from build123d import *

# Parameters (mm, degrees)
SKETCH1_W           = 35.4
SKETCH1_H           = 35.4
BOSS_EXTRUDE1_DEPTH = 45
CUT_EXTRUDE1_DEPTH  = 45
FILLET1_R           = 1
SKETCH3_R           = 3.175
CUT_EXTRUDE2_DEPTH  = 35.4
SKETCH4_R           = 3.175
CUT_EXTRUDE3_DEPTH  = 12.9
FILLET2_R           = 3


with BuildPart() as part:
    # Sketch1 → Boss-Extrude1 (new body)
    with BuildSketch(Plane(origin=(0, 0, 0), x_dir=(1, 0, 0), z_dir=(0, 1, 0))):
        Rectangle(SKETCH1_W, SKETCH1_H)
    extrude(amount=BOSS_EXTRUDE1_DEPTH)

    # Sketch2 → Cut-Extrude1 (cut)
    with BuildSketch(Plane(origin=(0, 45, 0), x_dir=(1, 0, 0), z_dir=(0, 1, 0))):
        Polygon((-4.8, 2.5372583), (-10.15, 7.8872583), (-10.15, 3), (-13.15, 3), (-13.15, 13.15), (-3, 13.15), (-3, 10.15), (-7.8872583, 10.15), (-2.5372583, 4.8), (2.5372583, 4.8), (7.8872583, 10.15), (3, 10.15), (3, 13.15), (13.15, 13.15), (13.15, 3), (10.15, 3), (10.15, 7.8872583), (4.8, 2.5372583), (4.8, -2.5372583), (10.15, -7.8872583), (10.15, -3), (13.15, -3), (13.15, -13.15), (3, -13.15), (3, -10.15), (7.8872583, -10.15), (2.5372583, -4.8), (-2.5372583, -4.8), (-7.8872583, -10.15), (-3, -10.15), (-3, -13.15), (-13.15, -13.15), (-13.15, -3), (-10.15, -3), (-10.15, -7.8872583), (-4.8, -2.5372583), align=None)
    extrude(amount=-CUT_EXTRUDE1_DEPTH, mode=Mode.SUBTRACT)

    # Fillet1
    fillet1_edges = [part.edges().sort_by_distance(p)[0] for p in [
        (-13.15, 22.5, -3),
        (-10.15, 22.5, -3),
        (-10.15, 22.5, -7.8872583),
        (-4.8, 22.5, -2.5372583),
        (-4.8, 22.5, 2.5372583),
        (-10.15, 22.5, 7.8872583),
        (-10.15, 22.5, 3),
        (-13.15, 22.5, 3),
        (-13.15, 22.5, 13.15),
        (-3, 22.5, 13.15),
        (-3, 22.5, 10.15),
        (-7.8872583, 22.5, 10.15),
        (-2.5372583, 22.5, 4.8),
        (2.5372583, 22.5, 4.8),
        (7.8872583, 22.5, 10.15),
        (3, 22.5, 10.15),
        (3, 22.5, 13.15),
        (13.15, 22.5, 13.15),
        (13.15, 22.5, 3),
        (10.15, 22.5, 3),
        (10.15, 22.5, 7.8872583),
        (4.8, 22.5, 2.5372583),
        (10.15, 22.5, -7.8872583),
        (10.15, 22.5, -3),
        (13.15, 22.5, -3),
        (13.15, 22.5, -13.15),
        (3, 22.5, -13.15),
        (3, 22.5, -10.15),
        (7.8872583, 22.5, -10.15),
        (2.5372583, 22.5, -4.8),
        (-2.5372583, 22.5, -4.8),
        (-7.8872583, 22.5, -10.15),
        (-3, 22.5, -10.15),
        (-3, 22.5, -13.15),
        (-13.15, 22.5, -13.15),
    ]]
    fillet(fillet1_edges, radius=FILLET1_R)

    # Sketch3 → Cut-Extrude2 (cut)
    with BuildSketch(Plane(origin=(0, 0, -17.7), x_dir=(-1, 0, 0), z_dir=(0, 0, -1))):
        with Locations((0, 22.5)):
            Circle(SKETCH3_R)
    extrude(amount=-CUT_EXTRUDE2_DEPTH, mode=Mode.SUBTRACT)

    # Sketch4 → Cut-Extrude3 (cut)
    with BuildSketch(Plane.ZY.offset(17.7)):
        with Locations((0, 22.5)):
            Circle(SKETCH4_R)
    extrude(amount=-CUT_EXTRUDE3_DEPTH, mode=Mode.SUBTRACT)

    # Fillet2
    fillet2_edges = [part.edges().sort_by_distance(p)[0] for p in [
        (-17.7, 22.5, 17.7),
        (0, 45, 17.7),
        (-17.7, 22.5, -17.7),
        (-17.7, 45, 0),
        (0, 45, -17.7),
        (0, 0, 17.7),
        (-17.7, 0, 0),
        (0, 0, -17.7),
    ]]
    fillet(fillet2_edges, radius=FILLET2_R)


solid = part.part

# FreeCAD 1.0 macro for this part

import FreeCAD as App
import Part
import Sketcher
from FreeCAD import Vector
Q = App.Units.Quantity


def edges_at(feature, points):
    """Names of the edges that pass closest to the given points."""
    edges = feature.Shape.Edges
    near = lambda p: min(range(len(edges)), key=lambda i: edges[i].distToShape(Part.Vertex(*p))[0])
    return sorted({f"Edge{near(p) + 1}" for p in points})

doc = App.newDocument("Part")
body = doc.addObject("PartDesign::Body", "Body")

sketch1 = body.newObject("Sketcher::SketchObject", "Sketch")
sketch1.AttachmentSupport = (doc.getObject("XZ_Plane"), [""])
sketch1.MapMode = "FlatFace"
sketch1.addGeometry([
    Part.LineSegment(Vector(-18, -18, 0), Vector(-18, 18, 0)),
    Part.LineSegment(Vector(-18, 18, 0), Vector(18, 18, 0)),
    Part.LineSegment(Vector(18, 18, 0), Vector(18, -18, 0)),
    Part.LineSegment(Vector(18, -18, 0), Vector(-18, -18, 0)),
], False)
sketch1.addConstraint([
    Sketcher.Constraint("Coincident", 0, 2, 1, 1),
    Sketcher.Constraint("Coincident", 1, 2, 2, 1),
    Sketcher.Constraint("Coincident", 2, 2, 3, 1),
    Sketcher.Constraint("Coincident", 3, 2, 0, 1),
    Sketcher.Constraint("Vertical", 0),
    Sketcher.Constraint("Horizontal", 1),
    Sketcher.Constraint("Vertical", 2),
    Sketcher.Constraint("Horizontal", 3),
    Sketcher.Constraint("Symmetric", 0, 2, 2, 2, -1, 1),
    Sketcher.Constraint("Equal", 3, 0),
    Sketcher.Constraint("DistanceX", 1, 1, 1, 2, Q("35.4 mm")),
])
pad1 = body.newObject("PartDesign::Pad", "Pad")
pad1.Profile = sketch1
pad1.Length = 45
pad1.Reversed = True

sketch2 = body.newObject("Sketcher::SketchObject", "Sketch001")
sketch2.AttachmentSupport = (doc.getObject("XZ_Plane"), [""])
sketch2.MapMode = "FlatFace"
sketch2.AttachmentOffset = App.Placement(Vector(0, 0, -45), App.Rotation())
sketch2.addGeometry([
    Part.LineSegment(Vector(-10.2, -7.9, 0), Vector(-4.8, -2.5, 0)),
    Part.LineSegment(Vector(-4.8, -2.5, 0), Vector(-4.8, 2.5, 0)),
    Part.LineSegment(Vector(-4.8, 2.5, 0), Vector(-10.2, 7.9, 0)),
    Part.LineSegment(Vector(-10.2, 7.9, 0), Vector(-10.2, 3, 0)),
    Part.LineSegment(Vector(-10.2, 3, 0), Vector(-13.2, 3, 0)),
    Part.LineSegment(Vector(-13.2, 3, 0), Vector(-13.2, 13.2, 0)),
    Part.LineSegment(Vector(-13.2, 13.2, 0), Vector(-3, 13.2, 0)),
    Part.LineSegment(Vector(-3, 13.2, 0), Vector(-3, 10.2, 0)),
    Part.LineSegment(Vector(-3, 10.2, 0), Vector(-7.9, 10.2, 0)),
    Part.LineSegment(Vector(-7.9, 10.2, 0), Vector(-2.5, 4.8, 0)),
    Part.LineSegment(Vector(-2.5, 4.8, 0), Vector(2.5, 4.8, 0)),
    Part.LineSegment(Vector(2.5, 4.8, 0), Vector(7.9, 10.2, 0)),
    Part.LineSegment(Vector(7.9, 10.2, 0), Vector(3, 10.2, 0)),
    Part.LineSegment(Vector(3, 10.2, 0), Vector(3, 13.2, 0)),
    Part.LineSegment(Vector(3, 13.2, 0), Vector(13.2, 13.2, 0)),
    Part.LineSegment(Vector(13.2, 13.2, 0), Vector(13.2, 3, 0)),
    Part.LineSegment(Vector(13.2, 3, 0), Vector(10.2, 3, 0)),
    Part.LineSegment(Vector(10.2, 3, 0), Vector(10.2, 7.9, 0)),
    Part.LineSegment(Vector(10.2, 7.9, 0), Vector(4.8, 2.5, 0)),
    Part.LineSegment(Vector(4.8, 2.5, 0), Vector(4.8, -2.5, 0)),
    Part.LineSegment(Vector(4.8, -2.5, 0), Vector(10.2, -7.9, 0)),
    Part.LineSegment(Vector(10.2, -7.9, 0), Vector(10.2, -3, 0)),
    Part.LineSegment(Vector(10.2, -3, 0), Vector(13.2, -3, 0)),
    Part.LineSegment(Vector(13.2, -3, 0), Vector(13.2, -13.2, 0)),
    Part.LineSegment(Vector(13.2, -13.2, 0), Vector(3, -13.2, 0)),
    Part.LineSegment(Vector(3, -13.2, 0), Vector(3, -10.2, 0)),
    Part.LineSegment(Vector(3, -10.2, 0), Vector(7.9, -10.2, 0)),
    Part.LineSegment(Vector(7.9, -10.2, 0), Vector(2.5, -4.8, 0)),
    Part.LineSegment(Vector(2.5, -4.8, 0), Vector(-2.5, -4.8, 0)),
    Part.LineSegment(Vector(-2.5, -4.8, 0), Vector(-7.9, -10.2, 0)),
    Part.LineSegment(Vector(-7.9, -10.2, 0), Vector(-3, -10.2, 0)),
    Part.LineSegment(Vector(-3, -10.2, 0), Vector(-3, -13.2, 0)),
    Part.LineSegment(Vector(-3, -13.2, 0), Vector(-13.2, -13.2, 0)),
    Part.LineSegment(Vector(-13.2, -13.2, 0), Vector(-13.2, -3, 0)),
    Part.LineSegment(Vector(-13.2, -3, 0), Vector(-10.2, -3, 0)),
    Part.LineSegment(Vector(-10.2, -3, 0), Vector(-10.2, -7.9, 0)),
], False)
sketch2.addConstraint([
    Sketcher.Constraint("Coincident", 0, 2, 1, 1),
    Sketcher.Constraint("Coincident", 1, 2, 2, 1),
    Sketcher.Constraint("Coincident", 2, 2, 3, 1),
    Sketcher.Constraint("Coincident", 3, 2, 4, 1),
    Sketcher.Constraint("Coincident", 4, 2, 5, 1),
    Sketcher.Constraint("Coincident", 5, 2, 6, 1),
    Sketcher.Constraint("Coincident", 6, 2, 7, 1),
    Sketcher.Constraint("Coincident", 7, 2, 8, 1),
    Sketcher.Constraint("Coincident", 8, 2, 9, 1),
    Sketcher.Constraint("Coincident", 9, 2, 10, 1),
    Sketcher.Constraint("Coincident", 10, 2, 11, 1),
    Sketcher.Constraint("Coincident", 11, 2, 12, 1),
    Sketcher.Constraint("Coincident", 12, 2, 13, 1),
    Sketcher.Constraint("Coincident", 13, 2, 14, 1),
    Sketcher.Constraint("Coincident", 14, 2, 15, 1),
    Sketcher.Constraint("Coincident", 15, 2, 16, 1),
    Sketcher.Constraint("Coincident", 16, 2, 17, 1),
    Sketcher.Constraint("Coincident", 17, 2, 18, 1),
    Sketcher.Constraint("Coincident", 18, 2, 19, 1),
    Sketcher.Constraint("Coincident", 19, 2, 20, 1),
    Sketcher.Constraint("Coincident", 20, 2, 21, 1),
    Sketcher.Constraint("Coincident", 21, 2, 22, 1),
    Sketcher.Constraint("Coincident", 22, 2, 23, 1),
    Sketcher.Constraint("Coincident", 23, 2, 24, 1),
    Sketcher.Constraint("Coincident", 24, 2, 25, 1),
    Sketcher.Constraint("Coincident", 25, 2, 26, 1),
    Sketcher.Constraint("Coincident", 26, 2, 27, 1),
    Sketcher.Constraint("Coincident", 27, 2, 28, 1),
    Sketcher.Constraint("Coincident", 28, 2, 29, 1),
    Sketcher.Constraint("Coincident", 29, 2, 30, 1),
    Sketcher.Constraint("Coincident", 30, 2, 31, 1),
    Sketcher.Constraint("Coincident", 31, 2, 32, 1),
    Sketcher.Constraint("Coincident", 32, 2, 33, 1),
    Sketcher.Constraint("Coincident", 33, 2, 34, 1),
    Sketcher.Constraint("Coincident", 34, 2, 35, 1),
    Sketcher.Constraint("Coincident", 35, 2, 0, 1),
    Sketcher.Constraint("Vertical", 1),
    Sketcher.Constraint("Vertical", 3),
    Sketcher.Constraint("Horizontal", 4),
    Sketcher.Constraint("Vertical", 5),
    Sketcher.Constraint("Horizontal", 6),
    Sketcher.Constraint("Vertical", 7),
    Sketcher.Constraint("Horizontal", 8),
    Sketcher.Constraint("Horizontal", 10),
    Sketcher.Constraint("Horizontal", 12),
    Sketcher.Constraint("Vertical", 13),
    Sketcher.Constraint("Horizontal", 14),
    Sketcher.Constraint("Vertical", 15),
    Sketcher.Constraint("Horizontal", 16),
    Sketcher.Constraint("Vertical", 17),
    Sketcher.Constraint("Vertical", 19),
    Sketcher.Constraint("Vertical", 21),
    Sketcher.Constraint("Horizontal", 22),
    Sketcher.Constraint("Vertical", 23),
    Sketcher.Constraint("Horizontal", 24),
    Sketcher.Constraint("Vertical", 25),
    Sketcher.Constraint("Horizontal", 26),
    Sketcher.Constraint("Horizontal", 28),
    Sketcher.Constraint("Horizontal", 30),
    Sketcher.Constraint("Vertical", 31),
    Sketcher.Constraint("Horizontal", 32),
    Sketcher.Constraint("Vertical", 33),
    Sketcher.Constraint("Horizontal", 34),
    Sketcher.Constraint("Vertical", 35),
    Sketcher.Constraint("Symmetric", 0, 2, 18, 2, -1, 1),
    Sketcher.Constraint("Symmetric", 2, 2, 20, 2, -1, 1),
    Sketcher.Constraint("Symmetric", 4, 2, 22, 2, -1, 1),
    Sketcher.Constraint("Symmetric", 6, 2, 24, 2, -1, 1),
    Sketcher.Constraint("Symmetric", 8, 2, 26, 2, -1, 1),
    Sketcher.Constraint("Symmetric", 9, 2, 27, 2, -1, 1),
    Sketcher.Constraint("Symmetric", 11, 2, 29, 2, -1, 1),
    Sketcher.Constraint("Symmetric", 13, 2, 31, 2, -1, 1),
    Sketcher.Constraint("Symmetric", 15, 2, 33, 2, -1, 1),
    Sketcher.Constraint("Symmetric", 17, 2, 35, 2, -1, 1),
    Sketcher.Constraint("Symmetric", 8, 2, 11, 2, -2),
    Sketcher.Constraint("Symmetric", 6, 2, 13, 2, -2),
    Sketcher.Constraint("Symmetric", 4, 2, 15, 2, -2),
    Sketcher.Constraint("Symmetric", 2, 2, 17, 2, -2),
    Sketcher.Constraint("Perpendicular", 0, 2),
    Sketcher.Constraint("Parallel", 2, 9),
    Sketcher.Constraint("Perpendicular", 9, 11),
    Sketcher.Constraint("Perpendicular", 18, 20),
    Sketcher.Constraint("Perpendicular", 27, 29),
    Sketcher.Constraint("Horizontal", 1, 2, 18, 2),
    Sketcher.Constraint("Equal", 28, 1),
    Sketcher.Constraint("Equal", 30, 3),
    Sketcher.Constraint("Equal", 32, 5),
    Sketcher.Constraint("Equal", 34, 7),
    Sketcher.Constraint("Equal", 2, 9),
    Sketcher.Constraint("DistanceX", 4, 2, 4, 1, Q("3 mm")),
    Sketcher.Constraint("DistanceY", -1, 1, 3, 2, Q("3 mm")),
    Sketcher.Constraint("DistanceX", 6, 1, 6, 2, Q("10.15 mm")),
    Sketcher.Constraint("DistanceX", 0, 2, -1, 1, Q("4.8 mm")),
    Sketcher.Constraint("DistanceX", 8, 2, 8, 1, Q("4.887258 mm")),
])
pocket1 = body.newObject("PartDesign::Pocket", "Pocket")
pocket1.Profile = sketch2
pocket1.Length = 45
pocket1.Reversed = True
doc.recompute()

fillet = body.newObject("PartDesign::Fillet", "Fillet")
fillet.Base = (pocket1, edges_at(pocket1, [
    (-13.15, 22.5, -3),
    (-10.15, 22.5, -3),
    (-10.15, 22.5, -7.887),
    (-4.8, 22.5, -2.537),
    (-4.8, 22.5, 2.537),
    (-10.15, 22.5, 7.887),
    (-10.15, 22.5, 3),
    (-13.15, 22.5, 3),
    (-13.15, 22.5, 13.15),
    (-3, 22.5, 13.15),
    (-3, 22.5, 10.15),
    (-7.887, 22.5, 10.15),
    (-2.537, 22.5, 4.8),
    (2.537, 22.5, 4.8),
    (7.887, 22.5, 10.15),
    (3, 22.5, 10.15),
    (3, 22.5, 13.15),
    (13.15, 22.5, 13.15),
    (13.15, 22.5, 3),
    (10.15, 22.5, 3),
    (10.15, 22.5, 7.887),
    (4.8, 22.5, 2.537),
    (10.15, 22.5, -7.887),
    (10.15, 22.5, -3),
    (13.15, 22.5, -3),
    (13.15, 22.5, -13.15),
    (3, 22.5, -13.15),
    (3, 22.5, -10.15),
    (7.887, 22.5, -10.15),
    (2.537, 22.5, -4.8),
    (-2.537, 22.5, -4.8),
    (-7.887, 22.5, -10.15),
    (-3, 22.5, -10.15),
    (-3, 22.5, -13.15),
    (-13.15, 22.5, -13.15),
]))
fillet.Radius = 1

sketch3 = body.newObject("Sketcher::SketchObject", "Sketch002")
sketch3.AttachmentSupport = (doc.getObject("XY_Plane"), [""])
sketch3.MapMode = "FlatFace"
sketch3.AttachmentOffset = App.Placement(Vector(0, 0, -17.7), App.Rotation())
sketch3.addGeometry(Part.Circle(Vector(0, 22.5, 0), Vector(0, 0, 1), 3.2), False)
sketch3.addConstraint([
    Sketcher.Constraint("PointOnObject", 0, 3, -2),
    Sketcher.Constraint("Diameter", 0, Q("6.35 mm")),
    Sketcher.Constraint("DistanceY", -1, 1, 0, 3, Q("22.5 mm")),
])
pocket2 = body.newObject("PartDesign::Pocket", "Pocket001")
pocket2.Profile = sketch3
pocket2.Length = 35.4
pocket2.Reversed = True

sketch4 = body.newObject("Sketcher::SketchObject", "Sketch003")
sketch4.AttachmentSupport = (doc.getObject("YZ_Plane"), [""])
sketch4.MapMode = "FlatFace"
sketch4.AttachmentOffset = App.Placement(Vector(0, 0, -17.7), App.Rotation())
sketch4.addGeometry(Part.Circle(Vector(22.5, 0, 0), Vector(0, 0, 1), 3.2), False)
sketch4.addConstraint([
    Sketcher.Constraint("PointOnObject", 0, 3, -1),
    Sketcher.Constraint("Diameter", 0, Q("6.35 mm")),
    Sketcher.Constraint("DistanceX", -1, 1, 0, 3, Q("22.5 mm")),
])
pocket3 = body.newObject("PartDesign::Pocket", "Pocket002")
pocket3.Profile = sketch4
pocket3.Length = 12.9
pocket3.Reversed = True
doc.recompute()

fillet2 = body.newObject("PartDesign::Fillet", "Fillet001")
fillet2.Base = (pocket3, edges_at(pocket3, [
    (-17.7, 22.5, 17.7),
    (0, 45, 17.7),
    (-17.7, 22.5, -17.7),
    (-17.7, 45, 0),
    (0, 45, -17.7),
    (0, 0, 17.7),
    (-17.7, 0, 0),
    (0, 0, -17.7),
]))
fillet2.Radius = 3

doc.recompute()
